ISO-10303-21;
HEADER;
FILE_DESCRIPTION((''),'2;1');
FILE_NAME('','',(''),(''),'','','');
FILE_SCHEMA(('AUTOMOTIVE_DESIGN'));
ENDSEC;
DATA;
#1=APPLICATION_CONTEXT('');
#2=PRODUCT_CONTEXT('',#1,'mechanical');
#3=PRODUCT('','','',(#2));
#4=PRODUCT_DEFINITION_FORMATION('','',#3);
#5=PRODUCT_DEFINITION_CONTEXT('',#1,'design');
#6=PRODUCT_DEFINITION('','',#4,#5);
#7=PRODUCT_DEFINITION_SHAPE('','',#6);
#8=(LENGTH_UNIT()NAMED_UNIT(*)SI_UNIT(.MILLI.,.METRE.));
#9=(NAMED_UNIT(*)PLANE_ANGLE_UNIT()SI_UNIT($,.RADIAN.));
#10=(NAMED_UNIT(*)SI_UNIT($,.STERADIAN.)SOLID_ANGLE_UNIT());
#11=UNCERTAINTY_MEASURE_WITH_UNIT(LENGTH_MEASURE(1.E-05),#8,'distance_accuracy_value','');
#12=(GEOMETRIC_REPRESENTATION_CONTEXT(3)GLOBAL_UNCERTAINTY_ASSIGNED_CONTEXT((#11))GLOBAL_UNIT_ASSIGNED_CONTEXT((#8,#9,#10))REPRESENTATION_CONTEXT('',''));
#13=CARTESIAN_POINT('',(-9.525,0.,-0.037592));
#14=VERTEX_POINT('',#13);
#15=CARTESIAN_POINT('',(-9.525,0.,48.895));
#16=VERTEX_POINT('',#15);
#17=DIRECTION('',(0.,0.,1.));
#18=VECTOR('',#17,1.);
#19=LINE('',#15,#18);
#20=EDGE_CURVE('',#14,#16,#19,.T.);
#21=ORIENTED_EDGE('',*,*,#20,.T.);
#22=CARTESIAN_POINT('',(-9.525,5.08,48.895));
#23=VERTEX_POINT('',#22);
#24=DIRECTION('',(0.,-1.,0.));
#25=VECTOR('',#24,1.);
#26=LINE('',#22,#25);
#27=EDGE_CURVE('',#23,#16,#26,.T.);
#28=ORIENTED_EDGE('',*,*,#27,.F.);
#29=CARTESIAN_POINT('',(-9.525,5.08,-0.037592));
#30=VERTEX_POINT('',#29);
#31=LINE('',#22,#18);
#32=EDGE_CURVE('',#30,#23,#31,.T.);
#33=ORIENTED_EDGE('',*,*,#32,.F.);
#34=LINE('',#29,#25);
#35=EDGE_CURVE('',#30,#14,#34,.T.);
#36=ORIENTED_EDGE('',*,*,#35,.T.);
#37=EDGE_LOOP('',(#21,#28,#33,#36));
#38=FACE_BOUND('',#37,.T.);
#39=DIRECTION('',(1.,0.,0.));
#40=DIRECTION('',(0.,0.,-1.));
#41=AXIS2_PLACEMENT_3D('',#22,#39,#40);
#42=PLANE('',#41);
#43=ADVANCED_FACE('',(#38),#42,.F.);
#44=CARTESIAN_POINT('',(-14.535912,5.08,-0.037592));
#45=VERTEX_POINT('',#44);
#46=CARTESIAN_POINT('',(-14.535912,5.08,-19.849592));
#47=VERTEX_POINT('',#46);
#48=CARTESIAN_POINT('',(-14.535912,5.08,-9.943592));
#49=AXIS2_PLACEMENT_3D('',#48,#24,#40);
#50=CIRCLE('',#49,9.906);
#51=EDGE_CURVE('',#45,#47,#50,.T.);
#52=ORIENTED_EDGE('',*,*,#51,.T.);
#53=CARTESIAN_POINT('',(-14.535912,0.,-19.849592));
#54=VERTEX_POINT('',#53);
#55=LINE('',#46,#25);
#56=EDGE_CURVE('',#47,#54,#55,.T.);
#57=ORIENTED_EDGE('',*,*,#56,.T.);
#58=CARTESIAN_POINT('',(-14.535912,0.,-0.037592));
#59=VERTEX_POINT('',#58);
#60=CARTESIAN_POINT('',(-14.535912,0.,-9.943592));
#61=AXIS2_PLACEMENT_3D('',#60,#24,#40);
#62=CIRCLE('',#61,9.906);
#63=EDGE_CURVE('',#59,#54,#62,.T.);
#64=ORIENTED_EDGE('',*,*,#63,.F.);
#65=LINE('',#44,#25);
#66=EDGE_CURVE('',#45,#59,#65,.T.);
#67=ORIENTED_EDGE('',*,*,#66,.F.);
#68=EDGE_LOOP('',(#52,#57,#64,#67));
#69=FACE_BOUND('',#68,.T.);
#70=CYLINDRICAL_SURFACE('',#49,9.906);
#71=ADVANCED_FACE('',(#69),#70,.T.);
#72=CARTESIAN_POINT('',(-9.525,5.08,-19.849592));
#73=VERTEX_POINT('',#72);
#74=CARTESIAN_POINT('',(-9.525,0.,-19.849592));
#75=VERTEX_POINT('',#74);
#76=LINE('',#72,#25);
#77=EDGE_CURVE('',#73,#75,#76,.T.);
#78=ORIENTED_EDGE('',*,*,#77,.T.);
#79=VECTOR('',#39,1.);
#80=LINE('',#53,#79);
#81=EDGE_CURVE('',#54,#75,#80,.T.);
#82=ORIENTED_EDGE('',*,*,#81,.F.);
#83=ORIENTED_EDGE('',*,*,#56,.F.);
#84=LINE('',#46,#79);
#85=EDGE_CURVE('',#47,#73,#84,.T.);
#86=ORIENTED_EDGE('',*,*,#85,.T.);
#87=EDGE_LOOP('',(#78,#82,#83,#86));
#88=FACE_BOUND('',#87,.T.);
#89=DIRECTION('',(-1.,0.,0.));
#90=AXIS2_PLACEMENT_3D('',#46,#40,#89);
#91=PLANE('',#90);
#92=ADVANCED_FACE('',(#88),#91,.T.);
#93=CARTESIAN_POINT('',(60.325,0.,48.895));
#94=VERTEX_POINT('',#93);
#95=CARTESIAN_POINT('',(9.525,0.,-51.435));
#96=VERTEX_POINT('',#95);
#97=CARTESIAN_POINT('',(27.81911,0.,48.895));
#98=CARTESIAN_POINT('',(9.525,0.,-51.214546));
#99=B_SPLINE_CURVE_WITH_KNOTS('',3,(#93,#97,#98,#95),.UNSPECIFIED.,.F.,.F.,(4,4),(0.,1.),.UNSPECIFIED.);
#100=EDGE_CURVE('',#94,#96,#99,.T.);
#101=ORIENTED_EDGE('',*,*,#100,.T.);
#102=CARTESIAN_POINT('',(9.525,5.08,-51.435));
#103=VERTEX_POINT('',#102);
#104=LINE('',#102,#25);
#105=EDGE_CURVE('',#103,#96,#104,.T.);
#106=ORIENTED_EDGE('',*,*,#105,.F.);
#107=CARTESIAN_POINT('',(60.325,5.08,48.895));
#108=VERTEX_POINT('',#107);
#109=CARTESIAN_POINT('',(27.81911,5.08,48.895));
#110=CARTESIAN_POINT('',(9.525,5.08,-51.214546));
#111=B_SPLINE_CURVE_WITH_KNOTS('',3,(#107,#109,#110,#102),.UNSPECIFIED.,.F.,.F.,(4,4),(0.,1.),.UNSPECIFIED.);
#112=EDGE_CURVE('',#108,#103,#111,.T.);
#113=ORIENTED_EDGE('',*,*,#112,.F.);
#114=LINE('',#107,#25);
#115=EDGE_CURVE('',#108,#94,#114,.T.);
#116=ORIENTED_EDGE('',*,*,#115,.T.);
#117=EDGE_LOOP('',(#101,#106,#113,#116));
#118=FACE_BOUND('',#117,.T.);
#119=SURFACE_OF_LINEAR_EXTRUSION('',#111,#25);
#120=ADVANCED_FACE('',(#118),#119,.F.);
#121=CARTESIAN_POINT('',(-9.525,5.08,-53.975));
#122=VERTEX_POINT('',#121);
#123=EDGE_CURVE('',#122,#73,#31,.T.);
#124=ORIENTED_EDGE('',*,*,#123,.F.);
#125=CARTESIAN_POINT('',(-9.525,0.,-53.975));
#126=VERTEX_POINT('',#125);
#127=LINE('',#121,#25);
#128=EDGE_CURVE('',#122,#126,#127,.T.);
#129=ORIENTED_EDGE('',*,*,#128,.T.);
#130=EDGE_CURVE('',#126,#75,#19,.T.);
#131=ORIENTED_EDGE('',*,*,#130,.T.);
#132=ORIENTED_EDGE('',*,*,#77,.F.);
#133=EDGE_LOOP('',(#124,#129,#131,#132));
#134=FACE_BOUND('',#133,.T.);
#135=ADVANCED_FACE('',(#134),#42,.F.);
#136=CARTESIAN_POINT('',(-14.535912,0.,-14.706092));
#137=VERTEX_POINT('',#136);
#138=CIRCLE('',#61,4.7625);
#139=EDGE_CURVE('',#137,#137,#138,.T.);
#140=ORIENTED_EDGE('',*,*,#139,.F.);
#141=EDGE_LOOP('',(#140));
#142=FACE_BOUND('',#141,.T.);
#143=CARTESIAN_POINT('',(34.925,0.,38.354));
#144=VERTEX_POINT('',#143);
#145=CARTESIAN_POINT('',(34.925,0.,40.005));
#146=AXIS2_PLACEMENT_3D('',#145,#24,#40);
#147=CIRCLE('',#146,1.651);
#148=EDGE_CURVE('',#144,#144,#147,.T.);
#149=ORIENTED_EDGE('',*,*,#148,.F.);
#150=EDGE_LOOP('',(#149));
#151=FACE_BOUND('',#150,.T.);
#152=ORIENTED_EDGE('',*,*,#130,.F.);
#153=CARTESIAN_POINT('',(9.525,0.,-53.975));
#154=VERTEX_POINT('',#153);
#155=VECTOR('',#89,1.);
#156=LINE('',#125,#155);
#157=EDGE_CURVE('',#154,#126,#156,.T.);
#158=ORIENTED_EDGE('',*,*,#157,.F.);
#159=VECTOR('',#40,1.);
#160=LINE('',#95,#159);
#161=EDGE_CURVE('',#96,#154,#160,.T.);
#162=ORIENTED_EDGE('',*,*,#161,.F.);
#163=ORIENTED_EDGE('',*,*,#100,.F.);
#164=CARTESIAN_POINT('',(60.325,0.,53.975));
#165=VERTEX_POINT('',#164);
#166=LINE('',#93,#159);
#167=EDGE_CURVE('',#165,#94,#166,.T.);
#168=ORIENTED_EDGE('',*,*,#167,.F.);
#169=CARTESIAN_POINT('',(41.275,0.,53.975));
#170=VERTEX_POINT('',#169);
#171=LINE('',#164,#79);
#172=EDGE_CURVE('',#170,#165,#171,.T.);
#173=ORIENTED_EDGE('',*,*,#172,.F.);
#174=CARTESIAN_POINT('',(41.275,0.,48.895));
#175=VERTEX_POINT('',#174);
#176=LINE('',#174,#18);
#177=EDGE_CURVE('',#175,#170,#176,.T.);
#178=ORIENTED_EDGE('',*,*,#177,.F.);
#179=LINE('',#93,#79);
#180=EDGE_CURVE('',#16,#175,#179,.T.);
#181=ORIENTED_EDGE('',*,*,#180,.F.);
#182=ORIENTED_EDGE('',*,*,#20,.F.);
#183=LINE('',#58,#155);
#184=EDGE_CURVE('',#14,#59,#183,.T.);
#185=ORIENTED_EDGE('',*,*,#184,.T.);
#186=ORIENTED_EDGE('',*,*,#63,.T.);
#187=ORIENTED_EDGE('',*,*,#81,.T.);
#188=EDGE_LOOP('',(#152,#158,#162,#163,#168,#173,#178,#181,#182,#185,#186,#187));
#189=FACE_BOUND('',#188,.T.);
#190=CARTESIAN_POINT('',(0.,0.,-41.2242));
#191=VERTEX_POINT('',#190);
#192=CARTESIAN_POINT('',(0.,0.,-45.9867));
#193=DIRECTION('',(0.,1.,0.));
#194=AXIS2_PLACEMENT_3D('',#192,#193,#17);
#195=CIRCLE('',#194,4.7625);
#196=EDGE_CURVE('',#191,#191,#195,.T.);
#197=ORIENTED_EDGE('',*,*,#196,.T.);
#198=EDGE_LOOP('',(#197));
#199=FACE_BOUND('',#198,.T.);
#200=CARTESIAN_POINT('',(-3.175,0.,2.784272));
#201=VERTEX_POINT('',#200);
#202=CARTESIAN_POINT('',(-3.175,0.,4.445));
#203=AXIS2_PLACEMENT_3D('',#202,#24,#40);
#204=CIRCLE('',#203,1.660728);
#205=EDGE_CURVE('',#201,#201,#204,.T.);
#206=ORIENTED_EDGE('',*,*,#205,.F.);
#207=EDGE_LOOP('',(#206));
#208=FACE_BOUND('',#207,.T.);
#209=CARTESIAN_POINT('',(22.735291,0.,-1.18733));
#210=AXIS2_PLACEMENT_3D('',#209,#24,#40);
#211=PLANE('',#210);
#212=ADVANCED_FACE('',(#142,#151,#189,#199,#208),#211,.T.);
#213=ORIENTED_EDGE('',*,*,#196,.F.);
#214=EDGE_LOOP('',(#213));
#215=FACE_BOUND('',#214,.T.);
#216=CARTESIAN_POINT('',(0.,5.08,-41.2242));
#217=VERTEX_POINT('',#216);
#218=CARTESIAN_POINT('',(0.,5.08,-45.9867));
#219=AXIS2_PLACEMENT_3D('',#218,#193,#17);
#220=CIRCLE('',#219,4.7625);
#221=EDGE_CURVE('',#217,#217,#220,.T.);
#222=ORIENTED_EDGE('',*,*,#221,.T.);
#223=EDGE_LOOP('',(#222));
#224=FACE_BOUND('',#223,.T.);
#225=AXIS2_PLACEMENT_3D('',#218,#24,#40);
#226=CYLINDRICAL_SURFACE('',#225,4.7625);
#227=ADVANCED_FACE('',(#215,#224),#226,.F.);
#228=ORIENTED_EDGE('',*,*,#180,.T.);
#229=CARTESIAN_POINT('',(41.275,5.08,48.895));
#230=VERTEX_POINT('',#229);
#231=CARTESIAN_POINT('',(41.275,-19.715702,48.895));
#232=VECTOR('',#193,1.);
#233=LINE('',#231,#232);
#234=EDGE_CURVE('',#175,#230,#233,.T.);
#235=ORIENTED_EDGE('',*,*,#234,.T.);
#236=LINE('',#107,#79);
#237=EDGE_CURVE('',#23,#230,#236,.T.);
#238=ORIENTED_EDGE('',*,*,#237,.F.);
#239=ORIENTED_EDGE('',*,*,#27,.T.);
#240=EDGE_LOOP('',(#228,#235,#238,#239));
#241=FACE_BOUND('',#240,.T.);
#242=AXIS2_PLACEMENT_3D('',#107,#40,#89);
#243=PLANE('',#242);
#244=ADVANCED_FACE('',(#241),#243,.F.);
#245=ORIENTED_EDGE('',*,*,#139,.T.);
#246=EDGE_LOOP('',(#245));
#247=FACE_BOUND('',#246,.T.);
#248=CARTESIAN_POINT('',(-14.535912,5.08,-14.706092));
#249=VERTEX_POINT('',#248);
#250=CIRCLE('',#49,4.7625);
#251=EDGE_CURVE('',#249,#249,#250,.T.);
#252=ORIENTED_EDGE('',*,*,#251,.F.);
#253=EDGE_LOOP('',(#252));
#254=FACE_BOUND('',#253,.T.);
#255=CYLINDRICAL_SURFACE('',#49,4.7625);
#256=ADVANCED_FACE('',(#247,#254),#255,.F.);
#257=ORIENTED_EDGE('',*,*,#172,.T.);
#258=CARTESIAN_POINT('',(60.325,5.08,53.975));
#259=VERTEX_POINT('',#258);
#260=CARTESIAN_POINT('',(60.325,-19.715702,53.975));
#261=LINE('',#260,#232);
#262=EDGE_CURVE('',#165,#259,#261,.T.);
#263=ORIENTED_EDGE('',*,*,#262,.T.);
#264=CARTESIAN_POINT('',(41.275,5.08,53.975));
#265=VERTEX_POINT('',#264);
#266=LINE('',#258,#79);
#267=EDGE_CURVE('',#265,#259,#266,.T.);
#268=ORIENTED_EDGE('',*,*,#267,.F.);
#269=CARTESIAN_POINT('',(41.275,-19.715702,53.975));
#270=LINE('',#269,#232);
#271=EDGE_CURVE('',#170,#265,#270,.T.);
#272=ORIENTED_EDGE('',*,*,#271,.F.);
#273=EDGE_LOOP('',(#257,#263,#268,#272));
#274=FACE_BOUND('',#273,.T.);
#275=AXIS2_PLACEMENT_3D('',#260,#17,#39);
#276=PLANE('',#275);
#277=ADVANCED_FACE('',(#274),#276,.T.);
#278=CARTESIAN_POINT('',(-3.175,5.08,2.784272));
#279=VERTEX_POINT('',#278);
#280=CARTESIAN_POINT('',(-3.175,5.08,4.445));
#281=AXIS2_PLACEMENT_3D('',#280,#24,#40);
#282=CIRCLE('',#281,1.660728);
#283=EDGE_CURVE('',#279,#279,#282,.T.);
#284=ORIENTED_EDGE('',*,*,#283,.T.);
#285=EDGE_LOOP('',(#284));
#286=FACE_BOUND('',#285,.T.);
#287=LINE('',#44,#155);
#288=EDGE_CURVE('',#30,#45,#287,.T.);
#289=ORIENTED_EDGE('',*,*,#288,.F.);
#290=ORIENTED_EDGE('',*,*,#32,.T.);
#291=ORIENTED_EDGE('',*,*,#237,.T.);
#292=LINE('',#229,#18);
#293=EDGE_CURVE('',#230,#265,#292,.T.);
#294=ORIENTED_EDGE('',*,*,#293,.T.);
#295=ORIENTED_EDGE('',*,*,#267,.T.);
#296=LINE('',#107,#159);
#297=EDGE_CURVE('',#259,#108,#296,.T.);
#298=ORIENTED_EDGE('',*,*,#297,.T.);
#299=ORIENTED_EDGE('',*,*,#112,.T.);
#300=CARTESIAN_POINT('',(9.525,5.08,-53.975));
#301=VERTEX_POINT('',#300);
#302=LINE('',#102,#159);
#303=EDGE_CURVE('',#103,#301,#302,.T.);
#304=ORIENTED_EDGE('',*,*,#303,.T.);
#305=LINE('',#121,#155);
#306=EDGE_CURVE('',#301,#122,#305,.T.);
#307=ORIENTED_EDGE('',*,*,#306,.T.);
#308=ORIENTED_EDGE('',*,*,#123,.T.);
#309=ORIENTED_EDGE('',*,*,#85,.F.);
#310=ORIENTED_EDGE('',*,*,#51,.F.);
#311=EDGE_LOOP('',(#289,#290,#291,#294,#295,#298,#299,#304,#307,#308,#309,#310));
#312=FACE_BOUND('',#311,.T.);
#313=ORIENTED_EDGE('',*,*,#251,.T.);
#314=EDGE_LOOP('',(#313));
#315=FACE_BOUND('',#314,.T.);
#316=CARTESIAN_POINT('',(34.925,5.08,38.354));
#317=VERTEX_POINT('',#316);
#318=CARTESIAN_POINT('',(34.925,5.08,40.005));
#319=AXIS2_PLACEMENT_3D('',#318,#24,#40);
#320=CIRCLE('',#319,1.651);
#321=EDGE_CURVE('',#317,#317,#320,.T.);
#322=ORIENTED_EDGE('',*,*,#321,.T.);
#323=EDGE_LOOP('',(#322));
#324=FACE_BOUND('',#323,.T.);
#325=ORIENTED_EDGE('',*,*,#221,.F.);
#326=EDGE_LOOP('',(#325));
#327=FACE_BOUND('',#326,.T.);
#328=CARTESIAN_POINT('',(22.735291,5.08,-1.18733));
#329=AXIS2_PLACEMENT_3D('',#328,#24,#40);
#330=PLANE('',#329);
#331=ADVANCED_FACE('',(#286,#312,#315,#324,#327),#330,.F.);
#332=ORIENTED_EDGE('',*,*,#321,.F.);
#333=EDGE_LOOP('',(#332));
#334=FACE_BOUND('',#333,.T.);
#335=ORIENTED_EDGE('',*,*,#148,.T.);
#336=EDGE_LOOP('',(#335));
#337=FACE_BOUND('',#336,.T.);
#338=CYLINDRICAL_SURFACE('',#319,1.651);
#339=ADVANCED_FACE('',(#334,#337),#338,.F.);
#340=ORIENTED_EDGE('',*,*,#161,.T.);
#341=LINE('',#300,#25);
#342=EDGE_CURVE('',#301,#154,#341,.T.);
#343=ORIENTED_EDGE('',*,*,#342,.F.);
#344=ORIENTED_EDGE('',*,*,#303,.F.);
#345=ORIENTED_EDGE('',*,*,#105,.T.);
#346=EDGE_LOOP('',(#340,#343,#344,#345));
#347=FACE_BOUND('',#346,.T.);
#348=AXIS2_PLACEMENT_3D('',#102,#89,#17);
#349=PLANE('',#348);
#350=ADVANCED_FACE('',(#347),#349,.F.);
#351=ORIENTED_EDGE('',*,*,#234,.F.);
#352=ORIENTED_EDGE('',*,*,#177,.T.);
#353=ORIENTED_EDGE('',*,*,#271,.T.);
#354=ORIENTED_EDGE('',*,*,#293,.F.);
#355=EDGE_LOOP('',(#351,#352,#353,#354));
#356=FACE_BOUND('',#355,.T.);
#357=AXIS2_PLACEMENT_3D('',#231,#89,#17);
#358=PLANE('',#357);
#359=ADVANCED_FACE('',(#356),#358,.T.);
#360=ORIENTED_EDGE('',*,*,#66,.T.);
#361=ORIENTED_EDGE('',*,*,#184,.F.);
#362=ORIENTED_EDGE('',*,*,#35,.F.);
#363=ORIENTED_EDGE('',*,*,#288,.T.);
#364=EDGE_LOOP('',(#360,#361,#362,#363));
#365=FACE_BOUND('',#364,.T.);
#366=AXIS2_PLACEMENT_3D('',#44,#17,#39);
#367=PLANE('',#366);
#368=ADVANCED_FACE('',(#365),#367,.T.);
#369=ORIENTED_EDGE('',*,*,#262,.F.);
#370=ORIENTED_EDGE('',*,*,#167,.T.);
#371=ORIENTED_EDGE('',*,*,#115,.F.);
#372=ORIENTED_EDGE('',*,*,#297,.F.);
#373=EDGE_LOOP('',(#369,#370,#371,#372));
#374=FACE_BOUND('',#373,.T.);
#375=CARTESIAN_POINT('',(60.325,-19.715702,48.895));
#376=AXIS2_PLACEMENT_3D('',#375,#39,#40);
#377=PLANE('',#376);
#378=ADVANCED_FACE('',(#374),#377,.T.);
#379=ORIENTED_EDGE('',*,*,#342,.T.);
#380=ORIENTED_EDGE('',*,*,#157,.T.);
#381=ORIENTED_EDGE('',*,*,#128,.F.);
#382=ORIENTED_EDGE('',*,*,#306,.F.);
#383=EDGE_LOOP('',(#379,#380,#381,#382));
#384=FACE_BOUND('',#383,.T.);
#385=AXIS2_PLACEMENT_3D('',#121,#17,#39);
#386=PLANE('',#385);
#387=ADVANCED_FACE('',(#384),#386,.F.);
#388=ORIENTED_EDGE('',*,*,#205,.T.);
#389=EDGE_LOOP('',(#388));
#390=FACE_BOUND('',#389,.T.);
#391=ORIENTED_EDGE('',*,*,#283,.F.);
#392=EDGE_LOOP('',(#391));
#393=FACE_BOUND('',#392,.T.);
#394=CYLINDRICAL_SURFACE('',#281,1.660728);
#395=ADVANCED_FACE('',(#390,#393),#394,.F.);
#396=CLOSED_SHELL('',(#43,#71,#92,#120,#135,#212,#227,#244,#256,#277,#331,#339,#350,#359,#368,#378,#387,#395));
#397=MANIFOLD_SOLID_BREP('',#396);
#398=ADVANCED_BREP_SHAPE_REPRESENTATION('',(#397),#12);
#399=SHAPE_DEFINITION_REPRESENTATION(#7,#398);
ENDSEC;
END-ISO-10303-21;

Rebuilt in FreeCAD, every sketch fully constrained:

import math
import FreeCAD as App
import Part
import Sketcher

V = App.Vector
Q = App.Units.Quantity


def add_polygon(sketch, points):
    """Adds a closed chain of lines whose ends are joined by coincident constraints."""
    first, n = sketch.GeometryCount, len(points)
    for a, b in zip(points, points[1:] + points[:1]):
        sketch.addGeometry(Part.LineSegment(App.Vector(*a, 0), App.Vector(*b, 0)), False)
    for i in range(n):
        sketch.addConstraint(Sketcher.Constraint("Coincident", first + i, 2, first + (i + 1) % n, 1))

doc = App.newDocument("Part")
body = doc.addObject("PartDesign::Body", "Body")

sketch1 = body.newObject("Sketcher::SketchObject", "Sketch")
sketch1.AttachmentSupport = (doc.getObject("XZ_Plane"), [""])
sketch1.MapMode = "FlatFace"
sketch1.addGeometry([
    Part.LineSegment(V(9.525, -53.975, 0), V(-9.525, -53.975, 0)),
    Part.LineSegment(V(-9.525, -53.975, 0), V(-9.525, 48.895, 0)),
    Part.LineSegment(V(-9.525, 48.895, 0), V(60.325, 48.895, 0)),
    Part.BSplineCurve([V(9.525, -51.435, 0), V(9.525, -51.214546, 0), V(27.81911, 48.895, 0), V(60.325, 48.895, 0)], [4, 4], [0, 1], False, 3, [1, 1, 1, 1], False),
    Part.LineSegment(V(9.525, -51.435, 0), V(9.525, -53.975, 0)),
    Part.Circle(V(0, -45.9867, 0), V(0, 0, 1), 4.7625),
], False)
sketch1.addConstraint([
    Sketcher.Constraint("Block", 3),
    Sketcher.Constraint("Coincident", 0, 2, 1, 1),
    Sketcher.Constraint("Coincident", 1, 2, 2, 1),
    Sketcher.Constraint("Coincident", 2, 2, 3, 2),
    Sketcher.Constraint("Coincident", 3, 1, 4, 1),
    Sketcher.Constraint("Coincident", 4, 2, 0, 1),
    Sketcher.Constraint("Horizontal", 0),
    Sketcher.Constraint("Vertical", 1),
    Sketcher.Constraint("Horizontal", 2),
    Sketcher.Constraint("Vertical", 4),
    Sketcher.Constraint("PointOnObject", 5, 3, -2),
    Sketcher.Constraint("Diameter", 5, Q("0.375 in")),
    Sketcher.Constraint("DistanceY", 4, 2, 4, 1, Q("0.1 in")),
    Sketcher.Constraint("DistanceX", 0, 2, 0, 1, Q("0.75 in")),
    Sketcher.Constraint("DistanceY", 5, 3, -1, 1, Q("1.8105 in")),
])
pad1 = body.newObject("PartDesign::Pad", "Pad")
pad1.Profile = sketch1
pad1.Length = Q("0.2 in")
pad1.Reversed = True

sketch2 = body.newObject("Sketcher::SketchObject", "Sketch001")
sketch2.AttachmentSupport = (doc.getObject("XZ_Plane"), [""])
sketch2.MapMode = "FlatFace"
sketch2.AttachmentOffset = App.Placement(V(0, 0, -0.2 * 25.4), App.Rotation())
add_polygon(sketch2, [(41.275, 48.895), (41.275, 53.975), (60.325, 53.975), (60.325, 48.895)])
sketch2.addConstraint([
    Sketcher.Constraint("Vertical", 0),
    Sketcher.Constraint("Horizontal", 1),
    Sketcher.Constraint("Vertical", 2),
    Sketcher.Constraint("Horizontal", 3),
    Sketcher.Constraint("DistanceY", 0, 1, 0, 2, Q("0.2 in")),
    Sketcher.Constraint("DistanceX", 1, 1, 1, 2, Q("0.75 in")),
    Sketcher.Constraint("DistanceX", -1, 1, 0, 2, Q("1.625 in")),
    Sketcher.Constraint("DistanceY", -1, 1, 0, 2, Q("2.125 in")),
])
pad2 = body.newObject("PartDesign::Pad", "Pad001")
pad2.Profile = sketch2
pad2.Length = Q("0.2 in")

sketch3 = body.newObject("Sketcher::SketchObject", "Sketch002")
sketch3.AttachmentSupport = (doc.getObject("XZ_Plane"), [""])
sketch3.MapMode = "FlatFace"
sketch3.addGeometry([
    Part.Circle(V(34.925, 40.005, 0), V(0, 0, 1), 1.651),
    Part.Circle(V(-3.175, 4.445, 0), V(0, 0, 1), 1.660728),
], False)
sketch3.addConstraint([
    Sketcher.Constraint("Diameter", 0, Q("0.13 in")),
    Sketcher.Constraint("DistanceX", 1, 3, 0, 3, Q("1.5 in")),
    Sketcher.Constraint("DistanceY", 1, 3, 0, 3, Q("1.4 in")),
    Sketcher.Constraint("DistanceX", -1, 1, 0, 3, Q("1.375 in")),
    Sketcher.Constraint("DistanceY", -1, 1, 0, 3, Q("1.575 in")),
    Sketcher.Constraint("Diameter", 1, Q("3.321457 mm")),
])
pocket1 = body.newObject("PartDesign::Pocket", "Pocket")
pocket1.Profile = sketch3
pocket1.Type = "ThroughAll"
pocket1.Midplane = True

sketch4 = body.newObject("Sketcher::SketchObject", "Sketch003")
sketch4.AttachmentSupport = (doc.getObject("XZ_Plane"), [""])
sketch4.MapMode = "FlatFace"
sketch4.addGeometry([
    Part.LineSegment(V(-9.525, -0.037592, 0), V(-14.535912, -0.037592, 0)),
    Part.ArcOfCircle(Part.Circle(V(-14.535912, -9.943592, 0), V(0, 0, 1), 9.906), math.radians(90), math.radians(270)),
    Part.LineSegment(V(-14.535912, -19.849592, 0), V(-9.525, -19.849592, 0)),
    Part.LineSegment(V(-9.525, -19.849592, 0), V(-9.525, -18.488742, 0)),
    Part.ArcOfCircle(Part.Circle(V(-14.535912, -9.943592, 0), V(0, 0, 1), 9.906), math.radians(-59.612462), math.radians(59.612462)),
    Part.LineSegment(V(-9.525, -1.398442, 0), V(-9.525, -0.037592, 0)),
    Part.Circle(V(-14.535912, -9.943592, 0), V(0, 0, 1), 4.7625),
], False)
sketch4.addConstraint([
    Sketcher.Constraint("Tangent", 0, 2, 1, 1),
    Sketcher.Constraint("Tangent", 1, 2, 2, 1),
    Sketcher.Constraint("Coincident", 2, 2, 3, 1),
    Sketcher.Constraint("Coincident", 3, 2, 4, 1),
    Sketcher.Constraint("Coincident", 4, 2, 5, 1),
    Sketcher.Constraint("Coincident", 5, 2, 0, 1),
    Sketcher.Constraint("Horizontal", 0),
    Sketcher.Constraint("Horizontal", 2),
    Sketcher.Constraint("Vertical", 3),
    Sketcher.Constraint("Vertical", 5),
    Sketcher.Constraint("Coincident", 4, 3, 1, 3),
    Sketcher.Constraint("Coincident", 6, 3, 1, 3),
    Sketcher.Constraint("Equal", 1, 4),
    Sketcher.Constraint("Vertical", 3, 2, 4, 2),
    Sketcher.Constraint("Radius", 1, Q("0.39 in")),
    Sketcher.Constraint("Diameter", 6, Q("0.375 in")),
    Sketcher.Constraint("DistanceX", 2, 2, -1, 1, Q("0.375 in")),
    Sketcher.Constraint("DistanceX", 0, 2, 0, 1, Q("5.010912 mm")),
    Sketcher.Constraint("DistanceY", 4, 2, -1, 1, Q("1.398442 mm")),
])
pad3 = body.newObject("PartDesign::Pad", "Pad002")
pad3.Profile = sketch4
pad3.Length = Q("0.2 in")
pad3.Reversed = True

doc.recompute()
